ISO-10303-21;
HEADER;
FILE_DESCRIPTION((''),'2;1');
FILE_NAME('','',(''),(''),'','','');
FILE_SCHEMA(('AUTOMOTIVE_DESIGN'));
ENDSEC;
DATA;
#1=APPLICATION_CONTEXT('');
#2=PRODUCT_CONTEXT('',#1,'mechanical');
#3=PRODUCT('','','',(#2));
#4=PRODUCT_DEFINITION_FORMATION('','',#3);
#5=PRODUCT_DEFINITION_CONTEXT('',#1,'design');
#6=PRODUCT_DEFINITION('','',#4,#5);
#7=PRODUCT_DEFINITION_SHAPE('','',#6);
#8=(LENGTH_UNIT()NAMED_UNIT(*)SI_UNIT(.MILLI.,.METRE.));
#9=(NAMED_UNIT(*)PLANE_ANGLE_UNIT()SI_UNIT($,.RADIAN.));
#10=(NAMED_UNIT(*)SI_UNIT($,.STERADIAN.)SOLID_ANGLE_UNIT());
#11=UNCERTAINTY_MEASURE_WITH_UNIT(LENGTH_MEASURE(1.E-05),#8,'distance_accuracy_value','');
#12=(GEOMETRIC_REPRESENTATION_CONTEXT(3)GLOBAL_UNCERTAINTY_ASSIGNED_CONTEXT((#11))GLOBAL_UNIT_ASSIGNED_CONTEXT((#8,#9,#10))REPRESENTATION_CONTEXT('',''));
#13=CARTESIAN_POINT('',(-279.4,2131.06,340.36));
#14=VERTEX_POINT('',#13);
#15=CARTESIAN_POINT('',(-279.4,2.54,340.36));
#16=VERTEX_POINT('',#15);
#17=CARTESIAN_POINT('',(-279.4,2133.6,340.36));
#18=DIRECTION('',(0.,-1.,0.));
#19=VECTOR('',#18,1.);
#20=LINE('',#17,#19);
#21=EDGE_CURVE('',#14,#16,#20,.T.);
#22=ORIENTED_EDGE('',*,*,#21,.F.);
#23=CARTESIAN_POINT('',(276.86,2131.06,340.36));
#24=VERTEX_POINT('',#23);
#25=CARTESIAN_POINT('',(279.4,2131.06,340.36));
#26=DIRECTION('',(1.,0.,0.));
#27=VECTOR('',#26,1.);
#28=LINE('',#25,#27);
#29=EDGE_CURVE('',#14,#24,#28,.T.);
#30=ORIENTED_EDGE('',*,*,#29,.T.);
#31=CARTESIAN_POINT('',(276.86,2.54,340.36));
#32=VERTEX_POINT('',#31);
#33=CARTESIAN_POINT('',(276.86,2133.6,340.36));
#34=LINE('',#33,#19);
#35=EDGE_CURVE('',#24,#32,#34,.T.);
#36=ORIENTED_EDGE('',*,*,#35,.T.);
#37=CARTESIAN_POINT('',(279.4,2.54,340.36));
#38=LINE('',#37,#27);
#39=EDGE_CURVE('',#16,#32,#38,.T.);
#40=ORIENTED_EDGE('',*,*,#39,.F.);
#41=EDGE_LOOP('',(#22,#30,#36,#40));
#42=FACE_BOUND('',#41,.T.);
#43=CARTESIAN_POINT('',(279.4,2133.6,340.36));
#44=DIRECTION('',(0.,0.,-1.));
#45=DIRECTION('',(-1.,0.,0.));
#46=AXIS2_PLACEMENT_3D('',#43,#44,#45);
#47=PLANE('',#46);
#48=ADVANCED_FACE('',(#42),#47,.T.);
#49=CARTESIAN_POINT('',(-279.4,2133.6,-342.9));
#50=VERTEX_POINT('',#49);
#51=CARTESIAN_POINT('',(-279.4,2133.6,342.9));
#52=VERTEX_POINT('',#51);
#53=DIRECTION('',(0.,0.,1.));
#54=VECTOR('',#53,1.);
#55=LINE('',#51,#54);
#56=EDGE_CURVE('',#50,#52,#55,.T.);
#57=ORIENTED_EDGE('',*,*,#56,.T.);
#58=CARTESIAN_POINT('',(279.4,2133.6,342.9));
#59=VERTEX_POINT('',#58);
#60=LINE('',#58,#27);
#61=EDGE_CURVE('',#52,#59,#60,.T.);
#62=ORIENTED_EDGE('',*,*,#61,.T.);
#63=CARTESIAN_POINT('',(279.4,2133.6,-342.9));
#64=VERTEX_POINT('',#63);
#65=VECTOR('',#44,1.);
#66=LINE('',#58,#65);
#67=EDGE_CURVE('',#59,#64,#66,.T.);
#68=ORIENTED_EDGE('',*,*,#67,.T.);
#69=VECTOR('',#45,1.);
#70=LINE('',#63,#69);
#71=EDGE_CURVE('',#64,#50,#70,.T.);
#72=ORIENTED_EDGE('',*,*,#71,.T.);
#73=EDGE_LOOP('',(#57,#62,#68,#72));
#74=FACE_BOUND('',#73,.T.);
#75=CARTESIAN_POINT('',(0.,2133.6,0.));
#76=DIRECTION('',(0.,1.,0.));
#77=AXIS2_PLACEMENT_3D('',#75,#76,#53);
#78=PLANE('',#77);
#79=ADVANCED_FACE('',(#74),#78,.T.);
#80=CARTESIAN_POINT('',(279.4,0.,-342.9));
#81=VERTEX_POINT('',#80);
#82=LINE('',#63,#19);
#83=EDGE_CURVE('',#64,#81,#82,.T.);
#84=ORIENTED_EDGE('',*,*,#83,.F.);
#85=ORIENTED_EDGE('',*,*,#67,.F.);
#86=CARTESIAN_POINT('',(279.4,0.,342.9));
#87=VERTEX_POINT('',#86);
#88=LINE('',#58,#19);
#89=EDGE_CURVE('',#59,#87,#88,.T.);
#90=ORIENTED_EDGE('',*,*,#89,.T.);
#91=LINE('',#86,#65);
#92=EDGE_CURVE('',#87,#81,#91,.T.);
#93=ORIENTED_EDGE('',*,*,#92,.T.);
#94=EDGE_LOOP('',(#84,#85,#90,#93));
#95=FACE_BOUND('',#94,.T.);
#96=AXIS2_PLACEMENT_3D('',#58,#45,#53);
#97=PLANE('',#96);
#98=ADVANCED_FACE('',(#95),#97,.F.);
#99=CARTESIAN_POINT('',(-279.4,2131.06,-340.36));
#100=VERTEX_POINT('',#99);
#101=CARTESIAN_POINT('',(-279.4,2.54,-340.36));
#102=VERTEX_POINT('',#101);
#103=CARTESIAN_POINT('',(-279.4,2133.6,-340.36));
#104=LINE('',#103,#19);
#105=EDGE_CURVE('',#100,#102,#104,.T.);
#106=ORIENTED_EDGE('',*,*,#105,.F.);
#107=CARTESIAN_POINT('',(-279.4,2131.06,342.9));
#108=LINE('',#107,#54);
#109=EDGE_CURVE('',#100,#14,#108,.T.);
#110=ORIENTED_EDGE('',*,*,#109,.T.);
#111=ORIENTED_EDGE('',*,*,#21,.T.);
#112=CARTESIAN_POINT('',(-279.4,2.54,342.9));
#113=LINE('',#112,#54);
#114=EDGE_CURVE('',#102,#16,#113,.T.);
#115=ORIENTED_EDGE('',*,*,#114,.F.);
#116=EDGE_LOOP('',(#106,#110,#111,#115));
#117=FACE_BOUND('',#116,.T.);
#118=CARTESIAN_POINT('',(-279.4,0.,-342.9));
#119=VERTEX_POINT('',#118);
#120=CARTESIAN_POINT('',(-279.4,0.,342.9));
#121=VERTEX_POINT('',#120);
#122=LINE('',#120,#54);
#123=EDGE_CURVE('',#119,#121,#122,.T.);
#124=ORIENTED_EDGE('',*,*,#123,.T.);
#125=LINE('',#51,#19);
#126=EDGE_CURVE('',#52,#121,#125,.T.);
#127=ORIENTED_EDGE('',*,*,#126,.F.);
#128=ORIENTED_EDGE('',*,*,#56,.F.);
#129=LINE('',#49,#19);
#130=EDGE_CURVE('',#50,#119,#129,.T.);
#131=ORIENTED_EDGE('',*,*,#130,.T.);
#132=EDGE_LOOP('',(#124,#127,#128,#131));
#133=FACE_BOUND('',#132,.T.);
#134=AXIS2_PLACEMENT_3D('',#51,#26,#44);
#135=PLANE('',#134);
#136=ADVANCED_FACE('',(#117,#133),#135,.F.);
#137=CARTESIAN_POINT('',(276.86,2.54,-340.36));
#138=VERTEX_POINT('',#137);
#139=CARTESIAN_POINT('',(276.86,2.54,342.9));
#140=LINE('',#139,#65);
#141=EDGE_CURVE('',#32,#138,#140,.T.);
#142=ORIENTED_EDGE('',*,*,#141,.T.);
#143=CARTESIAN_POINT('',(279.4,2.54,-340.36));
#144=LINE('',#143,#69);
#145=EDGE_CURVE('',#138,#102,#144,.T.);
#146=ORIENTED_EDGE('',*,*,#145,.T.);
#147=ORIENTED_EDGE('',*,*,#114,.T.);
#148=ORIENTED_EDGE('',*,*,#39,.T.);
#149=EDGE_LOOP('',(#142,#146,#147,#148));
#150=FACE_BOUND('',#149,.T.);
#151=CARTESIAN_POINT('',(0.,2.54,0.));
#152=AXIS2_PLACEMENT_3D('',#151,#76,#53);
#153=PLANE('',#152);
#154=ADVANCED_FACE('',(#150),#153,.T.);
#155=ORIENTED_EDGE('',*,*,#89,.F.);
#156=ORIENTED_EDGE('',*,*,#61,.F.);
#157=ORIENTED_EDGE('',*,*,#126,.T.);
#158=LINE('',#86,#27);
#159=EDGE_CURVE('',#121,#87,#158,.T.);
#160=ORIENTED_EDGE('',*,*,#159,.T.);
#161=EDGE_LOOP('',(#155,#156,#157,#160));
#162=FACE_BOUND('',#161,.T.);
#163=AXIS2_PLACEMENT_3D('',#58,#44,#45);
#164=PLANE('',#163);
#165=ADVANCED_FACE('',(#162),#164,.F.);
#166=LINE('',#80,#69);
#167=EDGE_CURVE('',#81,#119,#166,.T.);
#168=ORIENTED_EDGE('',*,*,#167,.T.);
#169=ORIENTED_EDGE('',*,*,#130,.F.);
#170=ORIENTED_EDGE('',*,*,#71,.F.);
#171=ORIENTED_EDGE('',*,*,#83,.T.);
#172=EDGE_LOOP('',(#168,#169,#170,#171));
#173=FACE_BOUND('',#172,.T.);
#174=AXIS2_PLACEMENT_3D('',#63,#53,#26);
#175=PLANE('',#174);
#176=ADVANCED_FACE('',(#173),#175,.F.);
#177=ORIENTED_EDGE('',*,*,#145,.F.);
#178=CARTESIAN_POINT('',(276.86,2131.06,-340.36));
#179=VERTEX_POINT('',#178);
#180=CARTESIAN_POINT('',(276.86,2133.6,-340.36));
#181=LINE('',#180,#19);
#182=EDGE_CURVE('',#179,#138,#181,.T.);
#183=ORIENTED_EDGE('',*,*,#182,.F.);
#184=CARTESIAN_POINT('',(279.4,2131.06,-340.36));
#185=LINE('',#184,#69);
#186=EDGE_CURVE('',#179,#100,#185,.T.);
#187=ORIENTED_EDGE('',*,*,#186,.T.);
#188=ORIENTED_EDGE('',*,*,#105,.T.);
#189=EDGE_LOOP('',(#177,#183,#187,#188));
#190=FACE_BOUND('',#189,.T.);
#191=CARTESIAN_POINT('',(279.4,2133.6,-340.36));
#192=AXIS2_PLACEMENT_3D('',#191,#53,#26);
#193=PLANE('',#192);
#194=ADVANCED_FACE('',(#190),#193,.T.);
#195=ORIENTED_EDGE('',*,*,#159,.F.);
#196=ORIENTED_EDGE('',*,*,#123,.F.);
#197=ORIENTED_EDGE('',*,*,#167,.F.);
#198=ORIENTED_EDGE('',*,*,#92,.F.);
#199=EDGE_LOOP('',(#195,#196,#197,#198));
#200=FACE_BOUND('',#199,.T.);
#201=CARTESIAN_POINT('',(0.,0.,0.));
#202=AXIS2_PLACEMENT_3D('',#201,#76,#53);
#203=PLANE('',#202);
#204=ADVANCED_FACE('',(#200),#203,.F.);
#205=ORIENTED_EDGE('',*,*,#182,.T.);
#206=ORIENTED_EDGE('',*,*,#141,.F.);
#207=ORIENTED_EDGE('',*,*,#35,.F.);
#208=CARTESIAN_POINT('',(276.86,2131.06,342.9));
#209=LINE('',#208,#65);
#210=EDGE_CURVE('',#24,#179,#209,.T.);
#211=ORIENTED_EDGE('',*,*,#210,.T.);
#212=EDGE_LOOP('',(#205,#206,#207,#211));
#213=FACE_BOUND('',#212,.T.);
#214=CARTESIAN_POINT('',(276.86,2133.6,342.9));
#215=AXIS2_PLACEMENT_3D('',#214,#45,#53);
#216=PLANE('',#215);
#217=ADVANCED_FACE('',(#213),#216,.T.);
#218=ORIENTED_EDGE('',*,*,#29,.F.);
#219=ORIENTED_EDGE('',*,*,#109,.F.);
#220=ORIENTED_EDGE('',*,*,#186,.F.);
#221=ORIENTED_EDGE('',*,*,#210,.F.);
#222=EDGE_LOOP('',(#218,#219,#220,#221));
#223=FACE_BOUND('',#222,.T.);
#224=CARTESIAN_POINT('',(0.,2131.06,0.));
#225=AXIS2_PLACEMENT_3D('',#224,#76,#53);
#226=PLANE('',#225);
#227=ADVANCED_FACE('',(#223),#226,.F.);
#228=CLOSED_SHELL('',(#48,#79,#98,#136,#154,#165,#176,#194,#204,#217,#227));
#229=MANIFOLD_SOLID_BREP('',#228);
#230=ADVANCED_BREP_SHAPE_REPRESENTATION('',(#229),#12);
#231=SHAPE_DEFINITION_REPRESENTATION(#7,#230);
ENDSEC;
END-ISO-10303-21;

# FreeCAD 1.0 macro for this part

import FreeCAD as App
import Part
import Sketcher
Q = App.Units.Quantity


def faces_at(feature, points):
    """Names of the faces that lie closest to the given points."""
    faces = feature.Shape.Faces
    near = lambda p: min(range(len(faces)), key=lambda i: faces[i].distToShape(Part.Vertex(*p))[0])
    return sorted({f"Face{near(p) + 1}" for p in points})

doc = App.newDocument("Part")
body = doc.addObject("PartDesign::Body", "Body")

sketch1 = body.newObject("Sketcher::SketchObject", "Sketch")
sketch1.AttachmentSupport = (doc.getObject("XZ_Plane"), [""])
sketch1.MapMode = "FlatFace"
sketch1.addGeometry([
    Part.LineSegment(App.Vector(-279, -343, 0), App.Vector(-279, 343, 0)),
    Part.LineSegment(App.Vector(-279, 343, 0), App.Vector(279, 343, 0)),
    Part.LineSegment(App.Vector(279, 343, 0), App.Vector(279, -343, 0)),
    Part.LineSegment(App.Vector(279, -343, 0), App.Vector(-279, -343, 0)),
], False)
sketch1.addConstraint([
    Sketcher.Constraint("Coincident", 0, 2, 1, 1),
    Sketcher.Constraint("Coincident", 1, 2, 2, 1),
    Sketcher.Constraint("Coincident", 2, 2, 3, 1),
    Sketcher.Constraint("Coincident", 3, 2, 0, 1),
    Sketcher.Constraint("Vertical", 0),
    Sketcher.Constraint("Horizontal", 1),
    Sketcher.Constraint("Vertical", 2),
    Sketcher.Constraint("Horizontal", 3),
    Sketcher.Constraint("Symmetric", 0, 2, 2, 2, -1, 1),
    Sketcher.Constraint("DistanceX", 1, 1, 1, 2, Q("22 in")),
    Sketcher.Constraint("DistanceY", 0, 1, 0, 2, Q("27 in")),
])
pad1 = body.newObject("PartDesign::Pad", "Pad")
pad1.Profile = sketch1
pad1.Length = Q("84 in")
pad1.Reversed = True
doc.recompute()

thickness = body.newObject("PartDesign::Thickness", "Thickness")
thickness.Base = (pad1, faces_at(pad1, [(-279.4, 1066.8, 0)]))
thickness.Value = Q("0.1 in")
thickness.Reversed = True
thickness.Join = "Intersection"

doc.recompute()
